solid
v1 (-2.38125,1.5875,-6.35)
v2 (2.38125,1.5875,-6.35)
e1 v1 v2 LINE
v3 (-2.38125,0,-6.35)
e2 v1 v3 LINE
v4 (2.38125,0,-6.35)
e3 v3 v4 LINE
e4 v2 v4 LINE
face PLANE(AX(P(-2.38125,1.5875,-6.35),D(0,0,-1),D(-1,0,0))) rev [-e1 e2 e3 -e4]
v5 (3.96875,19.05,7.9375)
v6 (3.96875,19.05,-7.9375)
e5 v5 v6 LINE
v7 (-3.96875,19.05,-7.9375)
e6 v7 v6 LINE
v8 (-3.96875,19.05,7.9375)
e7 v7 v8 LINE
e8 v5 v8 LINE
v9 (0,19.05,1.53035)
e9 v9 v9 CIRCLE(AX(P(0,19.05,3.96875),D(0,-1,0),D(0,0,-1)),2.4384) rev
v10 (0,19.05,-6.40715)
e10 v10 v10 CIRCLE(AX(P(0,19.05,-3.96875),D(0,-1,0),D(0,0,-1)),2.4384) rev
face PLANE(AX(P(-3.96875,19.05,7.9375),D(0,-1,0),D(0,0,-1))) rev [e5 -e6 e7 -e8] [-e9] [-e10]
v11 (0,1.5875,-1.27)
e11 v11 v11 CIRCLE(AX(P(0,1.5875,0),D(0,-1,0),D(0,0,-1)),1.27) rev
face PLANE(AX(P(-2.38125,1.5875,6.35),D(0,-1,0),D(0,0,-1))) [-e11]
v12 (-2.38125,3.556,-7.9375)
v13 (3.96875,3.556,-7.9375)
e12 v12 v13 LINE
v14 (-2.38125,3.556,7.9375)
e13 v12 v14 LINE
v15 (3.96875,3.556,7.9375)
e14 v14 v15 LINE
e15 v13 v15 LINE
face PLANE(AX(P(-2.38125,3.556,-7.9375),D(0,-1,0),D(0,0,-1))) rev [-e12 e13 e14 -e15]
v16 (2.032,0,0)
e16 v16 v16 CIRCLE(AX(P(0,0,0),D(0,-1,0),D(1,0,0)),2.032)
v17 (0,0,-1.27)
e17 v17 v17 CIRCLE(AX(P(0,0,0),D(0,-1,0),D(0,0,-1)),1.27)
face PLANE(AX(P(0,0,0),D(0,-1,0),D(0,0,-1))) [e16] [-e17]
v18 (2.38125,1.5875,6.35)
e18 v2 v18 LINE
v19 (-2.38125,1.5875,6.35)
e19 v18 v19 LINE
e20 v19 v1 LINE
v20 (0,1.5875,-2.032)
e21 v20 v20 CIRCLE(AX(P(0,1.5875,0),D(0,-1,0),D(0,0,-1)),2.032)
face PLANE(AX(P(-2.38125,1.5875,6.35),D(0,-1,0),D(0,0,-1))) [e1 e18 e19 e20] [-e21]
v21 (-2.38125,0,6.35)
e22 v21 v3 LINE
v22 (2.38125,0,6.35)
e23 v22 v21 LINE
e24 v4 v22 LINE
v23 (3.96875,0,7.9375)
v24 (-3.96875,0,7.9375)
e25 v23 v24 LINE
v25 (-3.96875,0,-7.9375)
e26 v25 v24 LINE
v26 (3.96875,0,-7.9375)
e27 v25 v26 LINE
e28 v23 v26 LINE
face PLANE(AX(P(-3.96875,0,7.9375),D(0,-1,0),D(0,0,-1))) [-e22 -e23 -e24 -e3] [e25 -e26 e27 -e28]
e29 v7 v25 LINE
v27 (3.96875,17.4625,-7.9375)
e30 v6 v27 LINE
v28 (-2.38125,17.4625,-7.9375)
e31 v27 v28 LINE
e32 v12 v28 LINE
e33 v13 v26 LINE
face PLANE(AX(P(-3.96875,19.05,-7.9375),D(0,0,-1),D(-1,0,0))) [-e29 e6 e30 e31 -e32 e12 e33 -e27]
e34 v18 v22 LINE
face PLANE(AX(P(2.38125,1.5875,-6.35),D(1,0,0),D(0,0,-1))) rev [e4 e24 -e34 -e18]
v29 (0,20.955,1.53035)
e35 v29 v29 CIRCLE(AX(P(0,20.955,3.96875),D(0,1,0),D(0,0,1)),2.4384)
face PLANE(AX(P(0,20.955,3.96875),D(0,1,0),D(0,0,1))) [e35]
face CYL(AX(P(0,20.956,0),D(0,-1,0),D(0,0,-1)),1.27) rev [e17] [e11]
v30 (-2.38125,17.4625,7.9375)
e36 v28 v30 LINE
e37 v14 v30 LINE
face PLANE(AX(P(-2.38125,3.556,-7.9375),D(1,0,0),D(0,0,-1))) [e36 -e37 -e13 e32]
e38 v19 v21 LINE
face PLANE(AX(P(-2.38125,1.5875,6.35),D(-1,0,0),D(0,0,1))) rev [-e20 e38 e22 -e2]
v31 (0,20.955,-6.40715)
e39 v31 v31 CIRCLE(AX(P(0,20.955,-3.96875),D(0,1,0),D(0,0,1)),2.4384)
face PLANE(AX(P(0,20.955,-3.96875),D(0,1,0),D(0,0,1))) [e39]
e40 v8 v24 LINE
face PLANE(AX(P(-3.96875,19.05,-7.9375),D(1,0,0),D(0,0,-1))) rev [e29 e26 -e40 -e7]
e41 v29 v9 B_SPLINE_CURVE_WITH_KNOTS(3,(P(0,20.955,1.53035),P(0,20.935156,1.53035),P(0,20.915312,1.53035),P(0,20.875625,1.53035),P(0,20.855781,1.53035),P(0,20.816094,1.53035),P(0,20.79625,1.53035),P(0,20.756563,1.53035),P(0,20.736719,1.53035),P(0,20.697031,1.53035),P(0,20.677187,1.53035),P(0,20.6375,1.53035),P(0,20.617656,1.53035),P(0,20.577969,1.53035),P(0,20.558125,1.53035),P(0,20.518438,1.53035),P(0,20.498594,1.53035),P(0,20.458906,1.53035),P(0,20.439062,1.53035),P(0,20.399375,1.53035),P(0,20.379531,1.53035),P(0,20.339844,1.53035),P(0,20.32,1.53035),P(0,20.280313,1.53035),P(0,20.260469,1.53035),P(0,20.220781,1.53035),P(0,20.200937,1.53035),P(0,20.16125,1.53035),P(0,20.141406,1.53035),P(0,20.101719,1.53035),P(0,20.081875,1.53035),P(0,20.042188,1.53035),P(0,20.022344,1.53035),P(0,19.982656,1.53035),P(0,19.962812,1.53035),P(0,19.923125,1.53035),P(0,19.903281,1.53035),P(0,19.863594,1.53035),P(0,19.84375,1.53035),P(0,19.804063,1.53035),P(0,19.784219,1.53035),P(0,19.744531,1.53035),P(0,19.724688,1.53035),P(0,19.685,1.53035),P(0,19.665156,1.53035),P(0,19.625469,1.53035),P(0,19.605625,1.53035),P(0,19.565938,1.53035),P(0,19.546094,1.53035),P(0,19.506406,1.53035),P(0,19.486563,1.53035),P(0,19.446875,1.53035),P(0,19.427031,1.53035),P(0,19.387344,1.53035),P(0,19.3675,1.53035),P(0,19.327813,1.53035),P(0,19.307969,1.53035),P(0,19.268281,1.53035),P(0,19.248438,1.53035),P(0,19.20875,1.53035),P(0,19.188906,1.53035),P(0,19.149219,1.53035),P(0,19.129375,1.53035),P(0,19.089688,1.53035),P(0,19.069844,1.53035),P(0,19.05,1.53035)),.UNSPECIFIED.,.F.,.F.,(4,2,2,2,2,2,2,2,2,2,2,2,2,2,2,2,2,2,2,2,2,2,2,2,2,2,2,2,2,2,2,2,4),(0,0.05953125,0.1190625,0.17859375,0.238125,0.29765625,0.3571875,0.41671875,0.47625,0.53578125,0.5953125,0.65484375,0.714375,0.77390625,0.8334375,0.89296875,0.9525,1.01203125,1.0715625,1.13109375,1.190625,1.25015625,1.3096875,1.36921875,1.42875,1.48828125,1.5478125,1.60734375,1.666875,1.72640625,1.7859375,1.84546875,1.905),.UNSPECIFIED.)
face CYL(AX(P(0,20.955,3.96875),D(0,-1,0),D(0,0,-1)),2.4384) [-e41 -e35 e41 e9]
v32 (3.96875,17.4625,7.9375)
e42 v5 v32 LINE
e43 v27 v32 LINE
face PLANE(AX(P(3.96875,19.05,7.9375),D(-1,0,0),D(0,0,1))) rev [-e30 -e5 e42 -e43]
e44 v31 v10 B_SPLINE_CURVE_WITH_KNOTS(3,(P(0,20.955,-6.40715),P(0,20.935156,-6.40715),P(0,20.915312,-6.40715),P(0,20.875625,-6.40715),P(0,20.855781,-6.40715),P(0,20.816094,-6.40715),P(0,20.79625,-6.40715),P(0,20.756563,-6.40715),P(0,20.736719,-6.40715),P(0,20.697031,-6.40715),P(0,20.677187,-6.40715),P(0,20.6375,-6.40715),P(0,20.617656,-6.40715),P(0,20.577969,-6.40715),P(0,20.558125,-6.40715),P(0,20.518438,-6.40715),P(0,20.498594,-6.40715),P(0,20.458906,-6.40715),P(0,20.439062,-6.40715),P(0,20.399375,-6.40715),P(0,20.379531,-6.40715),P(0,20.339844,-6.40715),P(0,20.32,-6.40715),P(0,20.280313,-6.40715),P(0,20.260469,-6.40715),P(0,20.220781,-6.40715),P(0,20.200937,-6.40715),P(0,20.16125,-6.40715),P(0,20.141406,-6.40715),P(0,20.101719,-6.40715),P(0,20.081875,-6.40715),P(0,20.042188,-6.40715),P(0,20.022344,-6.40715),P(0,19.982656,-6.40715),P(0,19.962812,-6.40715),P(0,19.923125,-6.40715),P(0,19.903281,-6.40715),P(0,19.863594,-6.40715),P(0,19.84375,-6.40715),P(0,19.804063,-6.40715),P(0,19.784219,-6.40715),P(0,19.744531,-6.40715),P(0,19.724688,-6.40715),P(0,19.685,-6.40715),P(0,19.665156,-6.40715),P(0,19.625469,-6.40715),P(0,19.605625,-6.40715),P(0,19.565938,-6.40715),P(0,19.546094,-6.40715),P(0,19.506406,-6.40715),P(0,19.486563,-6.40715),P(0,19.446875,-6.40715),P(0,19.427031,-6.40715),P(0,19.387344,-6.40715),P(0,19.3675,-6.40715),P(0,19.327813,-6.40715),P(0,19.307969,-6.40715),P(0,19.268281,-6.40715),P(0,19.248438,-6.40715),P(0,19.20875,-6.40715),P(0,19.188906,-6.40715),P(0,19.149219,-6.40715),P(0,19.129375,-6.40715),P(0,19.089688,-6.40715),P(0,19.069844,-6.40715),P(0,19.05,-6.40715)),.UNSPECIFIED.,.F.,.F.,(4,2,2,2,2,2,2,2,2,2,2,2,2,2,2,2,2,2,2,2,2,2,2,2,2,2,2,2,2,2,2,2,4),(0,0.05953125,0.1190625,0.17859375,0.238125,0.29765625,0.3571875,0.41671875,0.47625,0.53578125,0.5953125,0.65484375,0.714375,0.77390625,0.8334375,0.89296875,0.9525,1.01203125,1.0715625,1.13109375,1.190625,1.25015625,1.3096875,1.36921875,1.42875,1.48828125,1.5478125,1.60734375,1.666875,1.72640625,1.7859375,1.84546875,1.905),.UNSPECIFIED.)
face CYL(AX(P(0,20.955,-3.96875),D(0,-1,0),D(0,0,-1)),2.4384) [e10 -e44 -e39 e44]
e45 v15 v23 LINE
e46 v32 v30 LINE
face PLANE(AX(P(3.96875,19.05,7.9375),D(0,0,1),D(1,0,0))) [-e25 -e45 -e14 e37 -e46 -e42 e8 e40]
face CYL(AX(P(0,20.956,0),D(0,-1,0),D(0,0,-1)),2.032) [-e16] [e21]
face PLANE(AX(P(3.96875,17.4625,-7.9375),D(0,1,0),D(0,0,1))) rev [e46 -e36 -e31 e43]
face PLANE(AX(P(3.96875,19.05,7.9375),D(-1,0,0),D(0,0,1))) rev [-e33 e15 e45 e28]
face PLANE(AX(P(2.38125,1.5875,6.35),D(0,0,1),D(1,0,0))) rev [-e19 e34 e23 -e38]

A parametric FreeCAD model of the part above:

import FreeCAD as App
import Part
import Sketcher
Q = App.Units.Quantity


def add_polygon(sketch, points):
    """Adds a closed chain of lines whose ends are joined by coincident constraints."""
    first, n = sketch.GeometryCount, len(points)
    for a, b in zip(points, points[1:] + points[:1]):
        sketch.addGeometry(Part.LineSegment(App.Vector(*a, 0), App.Vector(*b, 0)), False)
    for i in range(n):
        sketch.addConstraint(Sketcher.Constraint("Coincident", first + i, 2, first + (i + 1) % n, 1))

doc = App.newDocument("Part")
body = doc.addObject("PartDesign::Body", "Body")

# Sketch on XZ plane
sketch1 = body.newObject("Sketcher::SketchObject", "Sketch")
sketch1.AttachmentSupport = (doc.getObject("XZ_Plane"), [""])
sketch1.MapMode = "FlatFace"
add_polygon(sketch1, [(-4, -8), (-4, 8), (4, 8), (4, -8)])  # lines 0-3
sketch1.addConstraint(Sketcher.Constraint("Vertical", 0))
sketch1.addConstraint(Sketcher.Constraint("Horizontal", 1))
sketch1.addConstraint(Sketcher.Constraint("Vertical", 2))
sketch1.addConstraint(Sketcher.Constraint("Horizontal", 3))
sketch1.addConstraint(Sketcher.Constraint("Symmetric", 0, 2, 2, 2, -1, 1))
sketch1.addConstraint(Sketcher.Constraint("DistanceX", 1, 1, 1, 2, Q("0.3125 in")))
sketch1.addConstraint(Sketcher.Constraint("DistanceY", 0, 1, 0, 2, Q("0.625 in")))
pad1 = body.newObject("PartDesign::Pad", "Pad")
pad1.Profile = sketch1
pad1.Length = Q("0.75 in")
pad1.Reversed = True

# Sketch on XZ plane
sketch2 = body.newObject("Sketcher::SketchObject", "Sketch001")
sketch2.AttachmentSupport = (doc.getObject("XZ_Plane"), [""])
sketch2.MapMode = "FlatFace"
sketch2.AttachmentOffset = App.Placement(App.Vector(0, 0, -0.75 * 25.4), App.Rotation())
sketch2.addGeometry(Part.Circle(App.Vector(0, 4, 0), App.Vector(0, 0, 1), 2.4), False)
sketch2.addConstraint(Sketcher.Constraint("PointOnObject", 0, 3, -2))
sketch2.addConstraint(Sketcher.Constraint("Diameter", 0, Q("0.192 in")))
sketch2.addConstraint(Sketcher.Constraint("DistanceY", -1, 1, 0, 3, Q("0.15625 in")))
pad2 = body.newObject("PartDesign::Pad", "Pad001")
pad2.Profile = sketch2
pad2.Length = Q("0.075 in")
pad2.Reversed = True
doc.recompute()

linearpattern = body.newObject("PartDesign::LinearPattern", "LinearPattern")
linearpattern.Originals = [pad2]
linearpattern.Direction = (doc.getObject("Z_Axis"), [""])
linearpattern.Mode = "offset"
linearpattern.Offset = Q("0.3125 in")
linearpattern.Occurrences = 2
linearpattern.Reversed = True
body.Tip = linearpattern

# Sketch on XZ plane
sketch3 = body.newObject("Sketcher::SketchObject", "Sketch002")
sketch3.AttachmentSupport = (doc.getObject("XZ_Plane"), [""])
sketch3.MapMode = "FlatFace"
add_polygon(sketch3, [(-2.4, 6.3), (-2.4, -6.3), (2.4, -6.3), (2.4, 6.3)])  # lines 0-3
sketch3.addConstraint(Sketcher.Constraint("Vertical", 0))
sketch3.addConstraint(Sketcher.Constraint("Horizontal", 1))
sketch3.addConstraint(Sketcher.Constraint("Vertical", 2))
sketch3.addConstraint(Sketcher.Constraint("Horizontal", 3))
sketch3.addConstraint(Sketcher.Constraint("Symmetric", 0, 2, 2, 2, -1, 1))
sketch3.addConstraint(Sketcher.Constraint("DistanceY", 0, 2, 0, 1, Q("0.5 in")))
sketch3.addConstraint(Sketcher.Constraint("DistanceX", 1, 1, 1, 2, Q("0.1875 in")))
pocket1 = body.newObject("PartDesign::Pocket", "Pocket")
pocket1.Profile = sketch3
pocket1.Length = Q("0.0625 in")

# Sketch on XZ plane
sketch4 = body.newObject("Sketcher::SketchObject", "Sketch003")
sketch4.AttachmentSupport = (doc.getObject("XZ_Plane"), [""])
sketch4.MapMode = "FlatFace"
sketch4.addGeometry(Part.Circle(App.Vector(0, 0, 0), App.Vector(0, 0, 1), 2), False)
sketch4.addGeometry(Part.Circle(App.Vector(0, 0, 0), App.Vector(0, 0, 1), 1.3), False)
sketch4.addConstraint(Sketcher.Constraint("Coincident", 0, 3, -1, 1))
sketch4.addConstraint(Sketcher.Constraint("Coincident", 1, 3, -1, 1))
sketch4.addConstraint(Sketcher.Constraint("Diameter", 1, Q("0.1 in")))
sketch4.addConstraint(Sketcher.Constraint("Diameter", 0, Q("0.16 in")))
pad3 = body.newObject("PartDesign::Pad", "Pad002")
pad3.Profile = sketch4
pad3.Type = "UpToFirst"
pad3.Reversed = True

# Sketch on XY plane
sketch5 = body.newObject("Sketcher::SketchObject", "Sketch004")
sketch5.AttachmentSupport = (doc.getObject("XY_Plane"), [""])
sketch5.MapMode = "FlatFace"
sketch5.AttachmentOffset = App.Placement(App.Vector(0, 0, 0.3125 * 25.4), App.Rotation())
add_polygon(sketch5, [(-2, 17), (-2, 4), (4, 4), (4, 17)])  # lines 0-3
sketch5.addConstraint(Sketcher.Constraint("Vertical", 0))
sketch5.addConstraint(Sketcher.Constraint("Horizontal", 1))
sketch5.addConstraint(Sketcher.Constraint("Vertical", 2))
sketch5.addConstraint(Sketcher.Constraint("Horizontal", 3))
sketch5.addConstraint(Sketcher.Constraint("DistanceX", 1, 1, 1, 2, Q("0.25 in")))
sketch5.addConstraint(Sketcher.Constraint("DistanceY", -1, 1, 0, 2, Q("0.14 in")))
sketch5.addConstraint(Sketcher.Constraint("DistanceY", 0, 2, 0, 1, Q("0.5475 in")))
sketch5.addConstraint(Sketcher.Constraint("DistanceX", 0, 2, -1, 1, Q("0.09375 in")))
pocket2 = body.newObject("PartDesign::Pocket", "Pocket001")
pocket2.Profile = sketch5
pocket2.Type = "ThroughAll"

doc.recompute()
